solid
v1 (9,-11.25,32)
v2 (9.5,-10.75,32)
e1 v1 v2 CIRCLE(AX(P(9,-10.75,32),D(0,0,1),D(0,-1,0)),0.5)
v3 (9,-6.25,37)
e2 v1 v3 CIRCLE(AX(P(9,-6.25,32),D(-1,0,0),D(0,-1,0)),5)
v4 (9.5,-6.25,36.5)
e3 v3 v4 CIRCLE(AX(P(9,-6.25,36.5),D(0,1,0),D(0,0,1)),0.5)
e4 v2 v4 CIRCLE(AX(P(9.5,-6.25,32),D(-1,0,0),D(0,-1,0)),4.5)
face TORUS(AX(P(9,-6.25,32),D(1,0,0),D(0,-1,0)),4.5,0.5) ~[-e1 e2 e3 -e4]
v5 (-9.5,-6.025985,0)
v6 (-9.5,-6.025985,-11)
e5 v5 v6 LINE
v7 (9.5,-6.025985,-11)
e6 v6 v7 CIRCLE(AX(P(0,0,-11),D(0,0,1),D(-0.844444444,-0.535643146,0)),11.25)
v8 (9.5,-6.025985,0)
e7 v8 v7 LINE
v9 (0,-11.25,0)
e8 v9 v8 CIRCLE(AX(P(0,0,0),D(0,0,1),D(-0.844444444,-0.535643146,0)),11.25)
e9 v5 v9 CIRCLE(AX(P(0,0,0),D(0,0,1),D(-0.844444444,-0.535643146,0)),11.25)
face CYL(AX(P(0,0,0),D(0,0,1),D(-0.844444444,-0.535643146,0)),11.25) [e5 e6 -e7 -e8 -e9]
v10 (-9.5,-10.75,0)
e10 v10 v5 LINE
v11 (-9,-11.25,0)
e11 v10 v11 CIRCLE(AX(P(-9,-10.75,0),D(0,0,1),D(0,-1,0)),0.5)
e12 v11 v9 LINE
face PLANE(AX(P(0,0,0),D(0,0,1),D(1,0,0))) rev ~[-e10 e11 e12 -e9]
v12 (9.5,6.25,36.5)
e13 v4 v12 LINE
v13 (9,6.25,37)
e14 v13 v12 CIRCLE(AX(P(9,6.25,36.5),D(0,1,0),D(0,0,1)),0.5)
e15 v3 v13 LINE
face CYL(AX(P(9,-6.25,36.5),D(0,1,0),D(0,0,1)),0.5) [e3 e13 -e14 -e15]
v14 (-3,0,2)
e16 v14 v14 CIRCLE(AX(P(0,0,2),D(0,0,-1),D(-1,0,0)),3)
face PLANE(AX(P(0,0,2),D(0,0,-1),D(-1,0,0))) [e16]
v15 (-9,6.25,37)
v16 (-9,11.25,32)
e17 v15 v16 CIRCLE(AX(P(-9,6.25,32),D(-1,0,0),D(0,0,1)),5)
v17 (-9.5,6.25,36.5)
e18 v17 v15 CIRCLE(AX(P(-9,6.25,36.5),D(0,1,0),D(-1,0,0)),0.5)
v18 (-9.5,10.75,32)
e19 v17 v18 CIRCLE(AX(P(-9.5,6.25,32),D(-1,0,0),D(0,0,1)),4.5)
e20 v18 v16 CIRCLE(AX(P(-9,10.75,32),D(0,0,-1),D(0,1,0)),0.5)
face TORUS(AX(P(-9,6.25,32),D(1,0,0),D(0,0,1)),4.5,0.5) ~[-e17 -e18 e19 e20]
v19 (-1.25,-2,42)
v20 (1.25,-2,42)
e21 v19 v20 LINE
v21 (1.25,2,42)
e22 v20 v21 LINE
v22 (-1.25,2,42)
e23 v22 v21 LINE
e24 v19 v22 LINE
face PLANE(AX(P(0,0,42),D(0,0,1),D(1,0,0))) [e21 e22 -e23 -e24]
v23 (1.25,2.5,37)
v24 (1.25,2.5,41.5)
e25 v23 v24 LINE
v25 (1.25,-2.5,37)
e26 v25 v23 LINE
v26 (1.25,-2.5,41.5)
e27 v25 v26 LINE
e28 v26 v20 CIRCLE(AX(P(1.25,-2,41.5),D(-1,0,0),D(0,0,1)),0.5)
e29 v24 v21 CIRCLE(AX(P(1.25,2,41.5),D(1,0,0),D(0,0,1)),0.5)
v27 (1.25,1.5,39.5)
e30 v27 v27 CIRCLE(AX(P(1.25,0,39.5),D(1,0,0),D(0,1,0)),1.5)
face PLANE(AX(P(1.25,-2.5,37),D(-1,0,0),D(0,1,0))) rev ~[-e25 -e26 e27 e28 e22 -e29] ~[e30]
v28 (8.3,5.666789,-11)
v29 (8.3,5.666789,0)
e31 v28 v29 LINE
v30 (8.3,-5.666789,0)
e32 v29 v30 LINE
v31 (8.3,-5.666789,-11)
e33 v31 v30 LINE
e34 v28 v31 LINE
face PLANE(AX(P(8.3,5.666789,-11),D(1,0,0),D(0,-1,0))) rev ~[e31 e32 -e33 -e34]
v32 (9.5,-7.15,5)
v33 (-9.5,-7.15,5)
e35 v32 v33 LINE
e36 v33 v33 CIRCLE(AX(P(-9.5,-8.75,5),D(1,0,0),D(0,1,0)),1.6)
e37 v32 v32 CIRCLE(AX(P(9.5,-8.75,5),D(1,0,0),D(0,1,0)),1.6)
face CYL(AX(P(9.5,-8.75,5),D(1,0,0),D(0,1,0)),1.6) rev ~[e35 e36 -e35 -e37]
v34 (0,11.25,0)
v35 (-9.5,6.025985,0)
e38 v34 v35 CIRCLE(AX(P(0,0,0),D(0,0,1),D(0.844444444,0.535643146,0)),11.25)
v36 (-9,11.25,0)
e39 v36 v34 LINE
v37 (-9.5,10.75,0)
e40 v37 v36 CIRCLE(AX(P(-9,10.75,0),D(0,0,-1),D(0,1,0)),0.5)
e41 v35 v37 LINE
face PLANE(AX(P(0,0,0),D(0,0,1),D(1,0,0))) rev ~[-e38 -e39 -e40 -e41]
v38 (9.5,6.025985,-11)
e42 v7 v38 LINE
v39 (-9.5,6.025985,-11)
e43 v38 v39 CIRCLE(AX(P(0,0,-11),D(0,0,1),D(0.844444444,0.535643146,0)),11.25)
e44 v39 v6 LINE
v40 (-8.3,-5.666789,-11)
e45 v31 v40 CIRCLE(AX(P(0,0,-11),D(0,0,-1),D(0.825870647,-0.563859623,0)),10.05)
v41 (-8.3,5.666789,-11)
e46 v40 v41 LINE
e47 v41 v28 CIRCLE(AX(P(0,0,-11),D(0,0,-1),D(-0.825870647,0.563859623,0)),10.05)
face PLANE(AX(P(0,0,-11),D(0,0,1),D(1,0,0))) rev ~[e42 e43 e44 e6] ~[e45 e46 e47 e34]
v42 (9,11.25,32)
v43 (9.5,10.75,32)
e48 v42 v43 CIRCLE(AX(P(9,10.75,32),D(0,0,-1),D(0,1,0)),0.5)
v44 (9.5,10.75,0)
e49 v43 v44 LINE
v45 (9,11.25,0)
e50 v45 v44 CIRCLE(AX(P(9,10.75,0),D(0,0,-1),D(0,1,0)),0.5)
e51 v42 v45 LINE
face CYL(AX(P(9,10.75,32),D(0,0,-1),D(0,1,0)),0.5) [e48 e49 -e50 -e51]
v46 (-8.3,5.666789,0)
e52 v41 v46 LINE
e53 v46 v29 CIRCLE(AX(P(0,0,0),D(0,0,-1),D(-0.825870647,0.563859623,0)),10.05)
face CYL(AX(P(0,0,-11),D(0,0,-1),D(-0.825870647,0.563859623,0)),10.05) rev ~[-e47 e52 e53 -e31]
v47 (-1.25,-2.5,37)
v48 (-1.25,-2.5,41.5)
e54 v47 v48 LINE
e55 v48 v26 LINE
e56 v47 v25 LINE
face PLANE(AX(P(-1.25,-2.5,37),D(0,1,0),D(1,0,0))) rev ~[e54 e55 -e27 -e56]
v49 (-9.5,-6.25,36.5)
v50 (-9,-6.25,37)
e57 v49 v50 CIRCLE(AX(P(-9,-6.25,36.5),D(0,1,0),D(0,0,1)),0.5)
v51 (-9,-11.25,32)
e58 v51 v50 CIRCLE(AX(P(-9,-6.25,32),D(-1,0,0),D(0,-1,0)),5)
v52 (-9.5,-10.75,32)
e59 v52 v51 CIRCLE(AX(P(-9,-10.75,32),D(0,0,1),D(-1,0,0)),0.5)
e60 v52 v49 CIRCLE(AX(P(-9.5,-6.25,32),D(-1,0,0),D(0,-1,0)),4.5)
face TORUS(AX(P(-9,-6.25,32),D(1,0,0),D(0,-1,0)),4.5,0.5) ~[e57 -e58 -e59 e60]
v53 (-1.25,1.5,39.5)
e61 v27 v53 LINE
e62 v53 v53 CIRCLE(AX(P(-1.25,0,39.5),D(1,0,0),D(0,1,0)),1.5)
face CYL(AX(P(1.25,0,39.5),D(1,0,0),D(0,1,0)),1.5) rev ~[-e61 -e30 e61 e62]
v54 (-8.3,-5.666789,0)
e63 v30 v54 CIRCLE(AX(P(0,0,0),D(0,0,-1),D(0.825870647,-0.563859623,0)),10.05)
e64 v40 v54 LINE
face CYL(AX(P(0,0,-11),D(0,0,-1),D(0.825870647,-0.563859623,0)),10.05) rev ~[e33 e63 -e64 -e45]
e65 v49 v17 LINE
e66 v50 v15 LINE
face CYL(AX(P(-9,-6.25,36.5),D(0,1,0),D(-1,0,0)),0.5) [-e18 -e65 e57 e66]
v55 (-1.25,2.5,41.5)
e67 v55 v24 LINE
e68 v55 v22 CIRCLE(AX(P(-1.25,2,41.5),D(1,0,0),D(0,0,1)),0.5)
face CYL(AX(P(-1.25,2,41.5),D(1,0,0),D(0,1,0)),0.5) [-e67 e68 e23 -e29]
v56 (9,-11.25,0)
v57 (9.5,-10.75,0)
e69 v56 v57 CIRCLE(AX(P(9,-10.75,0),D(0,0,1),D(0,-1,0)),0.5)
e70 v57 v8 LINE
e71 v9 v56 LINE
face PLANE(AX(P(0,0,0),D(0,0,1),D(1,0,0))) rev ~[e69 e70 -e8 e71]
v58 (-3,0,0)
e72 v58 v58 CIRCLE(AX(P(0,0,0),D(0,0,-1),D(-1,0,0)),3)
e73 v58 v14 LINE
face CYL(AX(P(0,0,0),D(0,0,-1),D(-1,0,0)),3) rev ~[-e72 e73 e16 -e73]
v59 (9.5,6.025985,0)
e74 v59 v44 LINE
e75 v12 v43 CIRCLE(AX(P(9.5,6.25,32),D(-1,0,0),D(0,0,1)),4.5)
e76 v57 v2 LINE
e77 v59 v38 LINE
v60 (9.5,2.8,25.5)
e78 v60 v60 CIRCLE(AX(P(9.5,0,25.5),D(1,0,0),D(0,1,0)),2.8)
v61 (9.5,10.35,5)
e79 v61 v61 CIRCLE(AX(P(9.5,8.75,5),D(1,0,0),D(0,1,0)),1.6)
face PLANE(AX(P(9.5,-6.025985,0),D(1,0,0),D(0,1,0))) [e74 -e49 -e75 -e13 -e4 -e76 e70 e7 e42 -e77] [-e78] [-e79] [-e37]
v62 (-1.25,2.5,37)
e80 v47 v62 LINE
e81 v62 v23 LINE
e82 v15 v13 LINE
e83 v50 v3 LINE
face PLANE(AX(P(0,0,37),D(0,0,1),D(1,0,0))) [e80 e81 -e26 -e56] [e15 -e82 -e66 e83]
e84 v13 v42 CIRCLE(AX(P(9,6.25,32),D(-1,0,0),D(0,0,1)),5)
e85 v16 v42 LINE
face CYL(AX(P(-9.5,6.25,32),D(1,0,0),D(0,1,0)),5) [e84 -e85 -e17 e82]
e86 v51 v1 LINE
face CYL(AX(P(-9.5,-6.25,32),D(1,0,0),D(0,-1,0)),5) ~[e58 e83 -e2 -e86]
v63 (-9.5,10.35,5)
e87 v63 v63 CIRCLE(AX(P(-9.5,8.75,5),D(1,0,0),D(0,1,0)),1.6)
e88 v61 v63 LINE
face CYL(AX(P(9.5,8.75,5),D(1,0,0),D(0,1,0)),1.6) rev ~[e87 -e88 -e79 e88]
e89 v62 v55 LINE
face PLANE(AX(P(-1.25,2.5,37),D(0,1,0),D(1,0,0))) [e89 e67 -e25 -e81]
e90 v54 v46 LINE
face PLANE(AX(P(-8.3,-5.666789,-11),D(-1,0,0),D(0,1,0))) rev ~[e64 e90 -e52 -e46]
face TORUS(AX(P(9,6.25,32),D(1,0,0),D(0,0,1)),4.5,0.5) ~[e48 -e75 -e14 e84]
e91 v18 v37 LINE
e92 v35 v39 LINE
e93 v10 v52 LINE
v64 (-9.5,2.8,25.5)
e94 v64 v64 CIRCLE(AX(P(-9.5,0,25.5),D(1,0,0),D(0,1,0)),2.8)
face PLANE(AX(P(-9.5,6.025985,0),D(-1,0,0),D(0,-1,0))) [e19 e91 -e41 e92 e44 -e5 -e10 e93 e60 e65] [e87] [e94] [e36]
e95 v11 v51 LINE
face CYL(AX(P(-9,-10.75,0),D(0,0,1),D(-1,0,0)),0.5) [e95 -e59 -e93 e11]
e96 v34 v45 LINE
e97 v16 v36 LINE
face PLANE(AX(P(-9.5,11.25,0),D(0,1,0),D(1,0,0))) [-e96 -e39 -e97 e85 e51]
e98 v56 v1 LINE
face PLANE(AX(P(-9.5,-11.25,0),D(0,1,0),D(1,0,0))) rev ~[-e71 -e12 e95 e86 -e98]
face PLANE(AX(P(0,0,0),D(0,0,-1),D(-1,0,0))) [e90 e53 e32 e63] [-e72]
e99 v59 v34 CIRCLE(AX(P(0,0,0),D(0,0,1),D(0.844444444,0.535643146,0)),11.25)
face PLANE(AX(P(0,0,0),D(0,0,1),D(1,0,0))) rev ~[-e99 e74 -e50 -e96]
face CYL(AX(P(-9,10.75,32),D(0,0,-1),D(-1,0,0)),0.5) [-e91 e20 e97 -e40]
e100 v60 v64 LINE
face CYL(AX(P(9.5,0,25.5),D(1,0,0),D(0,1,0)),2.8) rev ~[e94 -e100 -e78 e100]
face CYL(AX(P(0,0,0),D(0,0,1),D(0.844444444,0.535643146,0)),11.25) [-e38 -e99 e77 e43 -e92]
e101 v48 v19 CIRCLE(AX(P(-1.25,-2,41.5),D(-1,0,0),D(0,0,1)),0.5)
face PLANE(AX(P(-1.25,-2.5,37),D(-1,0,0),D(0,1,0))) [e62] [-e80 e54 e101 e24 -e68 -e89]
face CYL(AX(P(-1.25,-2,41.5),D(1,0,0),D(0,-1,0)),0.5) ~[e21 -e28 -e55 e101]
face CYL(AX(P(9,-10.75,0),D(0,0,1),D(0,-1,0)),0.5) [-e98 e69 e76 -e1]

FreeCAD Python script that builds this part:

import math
import FreeCAD as App
import Part
import Sketcher

V = App.Vector
Q = App.Units.Quantity


def edges_at(feature, points):
    """Names of the edges that pass closest to the given points."""
    edges = feature.Shape.Edges
    near = lambda p: min(range(len(edges)), key=lambda i: edges[i].distToShape(Part.Vertex(*p))[0])
    return sorted({f"Edge{near(p) + 1}" for p in points})


def add_polygon(sketch, points):
    """Adds a closed chain of lines whose ends are joined by coincident constraints."""
    first, n = sketch.GeometryCount, len(points)
    for a, b in zip(points, points[1:] + points[:1]):
        sketch.addGeometry(Part.LineSegment(App.Vector(*a, 0), App.Vector(*b, 0)), False)
    for i in range(n):
        sketch.addConstraint(Sketcher.Constraint("Coincident", first + i, 2, first + (i + 1) % n, 1))

doc = App.newDocument("Part")
params = doc.addObject("Spreadsheet::Sheet", "Params")
for row, (alias, value) in enumerate([
    ("sketch1_width", "19 mm"),
    ("sketch1_height", "22.5 mm"),
    ("pad1_length", "37 mm"),
    ("sketch2_radius", "11.25 mm"),
    ("pad2_length", "11 mm"),
    ("fillet_radius", "5 mm"),
    ("sketch3_diameter", "3.2 mm"),
    ("sketch4_height", "5 mm"),
    ("sketch4_width", "2.5 mm"),
    ("pad3_length", "5 mm"),
    ("fillet2_radius", "0.5 mm"),
    ("sketch5_diameter", "3 mm"),
    ("pocket2_length", "5 mm"),
    ("sketch6_diameter", "5.6 mm"),
    ("sketch7_radius", "10.05 mm"),
    ("pocket4_length", "11 mm"),
    ("sketch8_diameter", "6 mm"),
    ("pocket5_length", "2 mm"),
], start=1):
    params.set(f"A{row}", alias)
    params.set(f"B{row}", "=" + value)
    params.setAlias(f"B{row}", alias)

body = doc.addObject("PartDesign::Body", "Body")

# Sketch on XY plane
sketch1 = body.newObject("Sketcher::SketchObject", "Sketch")
sketch1.AttachmentSupport = (doc.getObject("XY_Plane"), [""])
sketch1.MapMode = "FlatFace"
add_polygon(sketch1, [(-10, 11), (-10, -11), (10, -11), (10, 11)])  # lines 0-3
sketch1.addConstraint(Sketcher.Constraint("Vertical", 0))
sketch1.addConstraint(Sketcher.Constraint("Horizontal", 1))
sketch1.addConstraint(Sketcher.Constraint("Vertical", 2))
sketch1.addConstraint(Sketcher.Constraint("Horizontal", 3))
sketch1.addConstraint(Sketcher.Constraint("Symmetric", 0, 2, 2, 2, -1, 1))
sketch1.addConstraint(Sketcher.Constraint("DistanceX", 1, 1, 1, 2, Q("19 mm")))
sketch1.addConstraint(Sketcher.Constraint("DistanceY", 0, 2, 0, 1, Q("22.5 mm")))
sketch1.setExpression("Constraints[9]", "Params.sketch1_width")
sketch1.setExpression("Constraints[10]", "Params.sketch1_height")
pad1 = body.newObject("PartDesign::Pad", "Pad")
pad1.Profile = sketch1
pad1.setExpression("Length", "Params.pad1_length")

# Sketch on XY plane
sketch2 = body.newObject("Sketcher::SketchObject", "Sketch001")
sketch2.AttachmentSupport = (doc.getObject("XY_Plane"), [""])
sketch2.MapMode = "FlatFace"
sketch2.addGeometry(Part.LineSegment(V(-10, -6, 0), V(-10, 6, 0)), False)
sketch2.addGeometry(Part.ArcOfCircle(Part.Circle(V(0, 0, 0), V(0, 0, 1), 11), math.radians(32), math.radians(148)), False)
sketch2.addGeometry(Part.LineSegment(V(10, 6, 0), V(10, -6, 0)), False)
sketch2.addGeometry(Part.ArcOfCircle(Part.Circle(V(0, 0, 0), V(0, 0, 1), 11), math.radians(-148), math.radians(-32)), False)
sketch2.addConstraint(Sketcher.Constraint("Coincident", 0, 2, 1, 2))
sketch2.addConstraint(Sketcher.Constraint("Coincident", 1, 1, 2, 1))
sketch2.addConstraint(Sketcher.Constraint("Coincident", 2, 2, 3, 2))
sketch2.addConstraint(Sketcher.Constraint("Coincident", 3, 1, 0, 1))
sketch2.addConstraint(Sketcher.Constraint("Vertical", 0))
sketch2.addConstraint(Sketcher.Constraint("Vertical", 2))
sketch2.addConstraint(Sketcher.Constraint("Coincident", 1, 3, -1, 1))
sketch2.addConstraint(Sketcher.Constraint("Coincident", 3, 3, -1, 1))
sketch2.addConstraint(Sketcher.Constraint("Equal", 1, 3))
sketch2.addConstraint(Sketcher.Constraint("Horizontal", 0, 2, 1, 1))
sketch2.addConstraint(Sketcher.Constraint("Radius", 1, Q("11.25 mm")))
sketch2.addConstraint(Sketcher.Constraint("DistanceX", 0, 2, 1, 1, Q("19 mm")))
sketch2.setExpression("Constraints[10]", "Params.sketch2_radius")
pad2 = body.newObject("PartDesign::Pad", "Pad001")
pad2.Profile = sketch2
pad2.setExpression("Length", "Params.pad2_length")
pad2.Reversed = True
doc.recompute()

fillet = body.newObject("PartDesign::Fillet", "Fillet")
fillet.Base = (pad2, edges_at(pad2, [(0, 11.25, 37), (0, -11.25, 37)]))
fillet.setExpression("Radius", "Params.fillet_radius")

# Sketch on YZ plane
sketch3 = body.newObject("Sketcher::SketchObject", "Sketch002")
sketch3.AttachmentSupport = (doc.getObject("YZ_Plane"), [""])
sketch3.MapMode = "FlatFace"
sketch3.AttachmentOffset = App.Placement(V(0, 0, 9.5), App.Rotation())
sketch3.addGeometry(Part.Circle(V(8.8, 5, 0), V(0, 0, 1), 1.6), False)
sketch3.addGeometry(Part.Circle(V(-8.8, 5, 0), V(0, 0, 1), 1.6), False)
sketch3.addConstraint(Sketcher.Constraint("Equal", 0, 1))
sketch3.addConstraint(Sketcher.Constraint("Symmetric", 0, 3, 1, 3, -2))
sketch3.addConstraint(Sketcher.Constraint("Diameter", 0, Q("3.2 mm")))
sketch3.addConstraint(Sketcher.Constraint("DistanceY", -1, 1, 0, 3, Q("5 mm")))
sketch3.addConstraint(Sketcher.Constraint("DistanceX", 1, 3, 0, 3, Q("17.5 mm")))
sketch3.setExpression("Constraints[2]", "Params.sketch3_diameter")
pocket1 = body.newObject("PartDesign::Pocket", "Pocket")
pocket1.Profile = sketch3
pocket1.Type = "ThroughAll"

# Sketch on XY plane
sketch4 = body.newObject("Sketcher::SketchObject", "Sketch003")
sketch4.AttachmentSupport = (doc.getObject("XY_Plane"), [""])
sketch4.MapMode = "FlatFace"
sketch4.AttachmentOffset = App.Placement(V(0, 0, 37), App.Rotation())
add_polygon(sketch4, [(-1.2, 2.5), (-1.2, -2.5), (1.2, -2.5), (1.2, 2.5)])  # lines 0-3
sketch4.addConstraint(Sketcher.Constraint("Vertical", 0))
sketch4.addConstraint(Sketcher.Constraint("Horizontal", 1))
sketch4.addConstraint(Sketcher.Constraint("Vertical", 2))
sketch4.addConstraint(Sketcher.Constraint("Horizontal", 3))
sketch4.addConstraint(Sketcher.Constraint("Symmetric", 0, 2, 2, 2, -1, 1))
sketch4.addConstraint(Sketcher.Constraint("DistanceY", 0, 2, 0, 1, Q("5 mm")))
sketch4.addConstraint(Sketcher.Constraint("DistanceX", 1, 1, 1, 2, Q("2.5 mm")))
sketch4.setExpression("Constraints[9]", "Params.sketch4_height")
sketch4.setExpression("Constraints[10]", "Params.sketch4_width")
pad3 = body.newObject("PartDesign::Pad", "Pad002")
pad3.Profile = sketch4
pad3.setExpression("Length", "Params.pad3_length")
doc.recompute()

fillet2 = body.newObject("PartDesign::Fillet", "Fillet001")
fillet2.Base = (pad3, edges_at(pad3, [
    (-9.5, 0, 37),
    (9.5, 0, 37),
    (9.5, 11.25, 16),
    (9.5, -11.25, 16),
    (9.5, 9.786, 35.536),
    (9.5, -9.786, 35.536),
    (-9.5, -11.25, 16),
    (-9.5, 11.25, 16),
    (-9.5, 9.786, 35.536),
    (-9.5, -9.786, 35.536),
    (0, -2.5, 42),
    (0, 2.5, 42),
]))
fillet2.setExpression("Radius", "Params.fillet2_radius")

# Sketch on YZ plane
sketch5 = body.newObject("Sketcher::SketchObject", "Sketch004")
sketch5.AttachmentSupport = (doc.getObject("YZ_Plane"), [""])
sketch5.MapMode = "FlatFace"
sketch5.AttachmentOffset = App.Placement(V(0, 0, 1.25), App.Rotation())
sketch5.addGeometry(Part.Circle(V(0, 39.5, 0), V(0, 0, 1), 1.5), False)
sketch5.addConstraint(Sketcher.Constraint("PointOnObject", 0, 3, -2))
sketch5.addConstraint(Sketcher.Constraint("Diameter", 0, Q("3 mm")))
sketch5.addConstraint(Sketcher.Constraint("DistanceY", -1, 1, 0, 3, Q("39.5 mm")))
sketch5.setExpression("Constraints[1]", "Params.sketch5_diameter")
pocket2 = body.newObject("PartDesign::Pocket", "Pocket001")
pocket2.Profile = sketch5
pocket2.setExpression("Length", "Params.pocket2_length")

# Sketch on YZ plane
sketch6 = body.newObject("Sketcher::SketchObject", "Sketch005")
sketch6.AttachmentSupport = (doc.getObject("YZ_Plane"), [""])
sketch6.MapMode = "FlatFace"
sketch6.AttachmentOffset = App.Placement(V(0, 0, 9.5), App.Rotation())
sketch6.addGeometry(Part.Circle(V(0, 25.5, 0), V(0, 0, 1), 2.8), False)
sketch6.addConstraint(Sketcher.Constraint("PointOnObject", 0, 3, -2))
sketch6.addConstraint(Sketcher.Constraint("Diameter", 0, Q("5.6 mm")))
sketch6.addConstraint(Sketcher.Constraint("DistanceY", -1, 1, 0, 3, Q("25.5 mm")))
sketch6.setExpression("Constraints[1]", "Params.sketch6_diameter")
pocket3 = body.newObject("PartDesign::Pocket", "Pocket002")
pocket3.Profile = sketch6
pocket3.Type = "ThroughAll"

# Sketch on XY plane
sketch7 = body.newObject("Sketcher::SketchObject", "Sketch006")
sketch7.AttachmentSupport = (doc.getObject("XY_Plane"), [""])
sketch7.MapMode = "FlatFace"
sketch7.AttachmentOffset = App.Placement(V(0, 0, -11), App.Rotation())
sketch7.addGeometry(Part.LineSegment(V(8, 6, 0), V(8, -6, 0)), False)
sketch7.addGeometry(Part.ArcOfCircle(Part.Circle(V(0, 0, 0), V(0, 0, 1), 10), math.radians(-146), math.radians(-34)), False)
sketch7.addGeometry(Part.LineSegment(V(-8, -6, 0), V(-8, 6, 0)), False)
sketch7.addGeometry(Part.ArcOfCircle(Part.Circle(V(0, 0, 0), V(0, 0, 1), 10), math.radians(34), math.radians(146)), False)
sketch7.addConstraint(Sketcher.Constraint("Coincident", 0, 2, 1, 2))
sketch7.addConstraint(Sketcher.Constraint("Coincident", 1, 1, 2, 1))
sketch7.addConstraint(Sketcher.Constraint("Coincident", 2, 2, 3, 2))
sketch7.addConstraint(Sketcher.Constraint("Coincident", 3, 1, 0, 1))
sketch7.addConstraint(Sketcher.Constraint("Vertical", 0))
sketch7.addConstraint(Sketcher.Constraint("Vertical", 2))
sketch7.addConstraint(Sketcher.Constraint("Coincident", 1, 3, -1, 1))
sketch7.addConstraint(Sketcher.Constraint("Coincident", 3, 3, -1, 1))
sketch7.addConstraint(Sketcher.Constraint("Equal", 1, 3))
sketch7.addConstraint(Sketcher.Constraint("Horizontal", 0, 2, 1, 1))
sketch7.addConstraint(Sketcher.Constraint("Radius", 1, Q("10.05 mm")))
sketch7.addConstraint(Sketcher.Constraint("DistanceX", -1, 1, 0, 2, Q("8.3 mm")))
sketch7.setExpression("Constraints[10]", "Params.sketch7_radius")
pocket4 = body.newObject("PartDesign::Pocket", "Pocket003")
pocket4.Profile = sketch7
pocket4.setExpression("Length", "Params.pocket4_length")
pocket4.Reversed = True

# Sketch on XY plane
sketch8 = body.newObject("Sketcher::SketchObject", "Sketch007")
sketch8.AttachmentSupport = (doc.getObject("XY_Plane"), [""])
sketch8.MapMode = "FlatFace"
sketch8.addGeometry(Part.Circle(V(0, 0, 0), V(0, 0, 1), 3), False)
sketch8.addConstraint(Sketcher.Constraint("Coincident", 0, 3, -1, 1))
sketch8.addConstraint(Sketcher.Constraint("Diameter", 0, Q("6 mm")))
sketch8.setExpression("Constraints[1]", "Params.sketch8_diameter")
pocket5 = body.newObject("PartDesign::Pocket", "Pocket004")
pocket5.Profile = sketch8
pocket5.setExpression("Length", "Params.pocket5_length")
pocket5.Reversed = True

doc.recompute()
